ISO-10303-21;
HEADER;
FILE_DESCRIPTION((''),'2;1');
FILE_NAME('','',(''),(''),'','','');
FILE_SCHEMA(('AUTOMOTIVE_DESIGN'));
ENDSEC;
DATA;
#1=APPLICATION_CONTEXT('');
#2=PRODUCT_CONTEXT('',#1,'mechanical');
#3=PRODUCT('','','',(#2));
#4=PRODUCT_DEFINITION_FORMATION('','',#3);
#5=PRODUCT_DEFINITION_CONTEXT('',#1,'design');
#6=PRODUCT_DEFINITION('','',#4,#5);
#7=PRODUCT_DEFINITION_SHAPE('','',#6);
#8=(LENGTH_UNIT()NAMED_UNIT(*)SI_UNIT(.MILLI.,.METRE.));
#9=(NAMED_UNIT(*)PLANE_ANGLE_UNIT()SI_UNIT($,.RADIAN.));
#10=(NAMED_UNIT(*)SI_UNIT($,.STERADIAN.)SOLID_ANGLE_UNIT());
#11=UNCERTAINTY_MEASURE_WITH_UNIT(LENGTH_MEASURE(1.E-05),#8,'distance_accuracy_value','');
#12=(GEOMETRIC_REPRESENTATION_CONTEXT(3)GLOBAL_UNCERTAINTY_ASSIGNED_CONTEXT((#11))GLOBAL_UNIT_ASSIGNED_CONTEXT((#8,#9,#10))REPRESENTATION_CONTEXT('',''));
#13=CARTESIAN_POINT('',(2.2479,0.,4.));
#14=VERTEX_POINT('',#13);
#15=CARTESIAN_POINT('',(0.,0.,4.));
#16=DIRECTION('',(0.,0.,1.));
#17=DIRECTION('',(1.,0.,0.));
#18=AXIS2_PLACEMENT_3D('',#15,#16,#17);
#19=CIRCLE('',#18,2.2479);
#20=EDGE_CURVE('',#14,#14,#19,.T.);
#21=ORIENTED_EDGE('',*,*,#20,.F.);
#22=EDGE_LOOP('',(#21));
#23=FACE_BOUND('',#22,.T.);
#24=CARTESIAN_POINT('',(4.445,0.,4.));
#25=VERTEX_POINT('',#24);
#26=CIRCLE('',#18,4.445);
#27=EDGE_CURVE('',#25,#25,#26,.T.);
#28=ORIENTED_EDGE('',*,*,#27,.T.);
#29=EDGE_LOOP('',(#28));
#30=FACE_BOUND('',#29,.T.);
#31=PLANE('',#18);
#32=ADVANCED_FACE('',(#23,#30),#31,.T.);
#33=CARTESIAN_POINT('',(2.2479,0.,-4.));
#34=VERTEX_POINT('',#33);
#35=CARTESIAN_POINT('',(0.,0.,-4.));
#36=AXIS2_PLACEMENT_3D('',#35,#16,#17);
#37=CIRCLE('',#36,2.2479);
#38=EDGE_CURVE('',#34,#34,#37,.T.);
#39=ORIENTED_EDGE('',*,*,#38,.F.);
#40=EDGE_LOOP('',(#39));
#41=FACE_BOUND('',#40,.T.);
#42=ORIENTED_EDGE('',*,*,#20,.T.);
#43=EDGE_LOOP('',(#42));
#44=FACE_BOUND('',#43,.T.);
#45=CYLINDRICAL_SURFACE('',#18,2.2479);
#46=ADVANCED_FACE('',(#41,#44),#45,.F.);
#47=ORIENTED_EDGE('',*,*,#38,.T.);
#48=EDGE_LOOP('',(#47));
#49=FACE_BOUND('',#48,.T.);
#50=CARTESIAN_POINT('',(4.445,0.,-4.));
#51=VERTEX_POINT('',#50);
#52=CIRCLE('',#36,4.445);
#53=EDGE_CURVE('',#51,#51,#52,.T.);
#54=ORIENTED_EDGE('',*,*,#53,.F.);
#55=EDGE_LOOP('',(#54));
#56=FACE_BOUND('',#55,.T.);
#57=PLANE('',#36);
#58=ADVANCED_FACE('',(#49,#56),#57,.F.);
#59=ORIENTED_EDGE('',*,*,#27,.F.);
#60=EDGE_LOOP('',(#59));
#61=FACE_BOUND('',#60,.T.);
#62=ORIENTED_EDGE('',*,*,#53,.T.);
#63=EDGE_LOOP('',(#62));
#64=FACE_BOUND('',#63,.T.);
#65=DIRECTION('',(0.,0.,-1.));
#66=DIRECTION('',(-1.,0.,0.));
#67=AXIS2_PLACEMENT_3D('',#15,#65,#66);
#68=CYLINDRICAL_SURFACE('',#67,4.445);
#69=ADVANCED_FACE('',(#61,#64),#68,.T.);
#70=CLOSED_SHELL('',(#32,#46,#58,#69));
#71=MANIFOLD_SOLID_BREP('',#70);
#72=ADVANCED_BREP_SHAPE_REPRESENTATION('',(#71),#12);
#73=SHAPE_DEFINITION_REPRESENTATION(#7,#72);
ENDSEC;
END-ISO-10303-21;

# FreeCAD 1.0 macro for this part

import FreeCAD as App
import Part
import Sketcher

V = App.Vector
Q = App.Units.Quantity

doc = App.newDocument("Part")
params = doc.addObject("Spreadsheet::Sheet", "Params")
for row, (alias, value) in enumerate([
    ("sketch1_diameter", "0.35 in"),
    ("pad1_length", "8 mm"),
    ("sketch2_diameter", "0.177 in"),
    ("hole_diameter", "0.177 in"),
], start=1):
    params.set(f"A{row}", alias)
    params.set(f"B{row}", "=" + value)
    params.setAlias(f"B{row}", alias)

body = doc.addObject("PartDesign::Body", "Body")

# Sketch on XY plane
sketch1 = doc.addObject("Sketcher::SketchObject", "Sketch")
body.addObject(sketch1)
sketch1.AttachmentSupport = (doc.XY_Plane, [""])
sketch1.MapMode = "FlatFace"
sketch1.addGeometry(Part.Circle(V(0, 0, 0), V(0, 0, 1), 4.445), False)
sketch1.addConstraint([
    Sketcher.Constraint("Coincident", 0, 3, -1, 1),
    Sketcher.Constraint("Diameter", 0, Q("0.35 in")),
])
sketch1.setExpression("Constraints[1]", "Params.sketch1_diameter")
pad1 = doc.addObject("PartDesign::Pad", "Pad")
body.addObject(pad1)
pad1.Profile = sketch1
pad1.setExpression("Length", "Params.pad1_length")
pad1.Midplane = True

# Sketch on XY plane
sketch2 = doc.addObject("Sketcher::SketchObject", "Sketch001")
body.addObject(sketch2)
sketch2.AttachmentSupport = (doc.XY_Plane, [""])
sketch2.MapMode = "FlatFace"
sketch2.AttachmentOffset = App.Placement(V(0, 0, 4), App.Rotation())
sketch2.addGeometry(Part.Circle(V(0, 0, 0), V(0, 0, 1), 2.2479), False)
sketch2.addConstraint([
    Sketcher.Constraint("Coincident", 0, 3, -1, 1),
    Sketcher.Constraint("Diameter", 0, Q("0.177 in")),
])
sketch2.setExpression("Constraints[1]", "Params.sketch2_diameter")
doc.recompute()
hole = doc.addObject("PartDesign::Hole", "Hole")
body.addObject(hole)
hole.Profile = sketch2
hole.ThreadType = "None"
hole.setExpression("Diameter", "Params.hole_diameter")
hole.DepthType = "ThroughAll"

doc.recompute()
